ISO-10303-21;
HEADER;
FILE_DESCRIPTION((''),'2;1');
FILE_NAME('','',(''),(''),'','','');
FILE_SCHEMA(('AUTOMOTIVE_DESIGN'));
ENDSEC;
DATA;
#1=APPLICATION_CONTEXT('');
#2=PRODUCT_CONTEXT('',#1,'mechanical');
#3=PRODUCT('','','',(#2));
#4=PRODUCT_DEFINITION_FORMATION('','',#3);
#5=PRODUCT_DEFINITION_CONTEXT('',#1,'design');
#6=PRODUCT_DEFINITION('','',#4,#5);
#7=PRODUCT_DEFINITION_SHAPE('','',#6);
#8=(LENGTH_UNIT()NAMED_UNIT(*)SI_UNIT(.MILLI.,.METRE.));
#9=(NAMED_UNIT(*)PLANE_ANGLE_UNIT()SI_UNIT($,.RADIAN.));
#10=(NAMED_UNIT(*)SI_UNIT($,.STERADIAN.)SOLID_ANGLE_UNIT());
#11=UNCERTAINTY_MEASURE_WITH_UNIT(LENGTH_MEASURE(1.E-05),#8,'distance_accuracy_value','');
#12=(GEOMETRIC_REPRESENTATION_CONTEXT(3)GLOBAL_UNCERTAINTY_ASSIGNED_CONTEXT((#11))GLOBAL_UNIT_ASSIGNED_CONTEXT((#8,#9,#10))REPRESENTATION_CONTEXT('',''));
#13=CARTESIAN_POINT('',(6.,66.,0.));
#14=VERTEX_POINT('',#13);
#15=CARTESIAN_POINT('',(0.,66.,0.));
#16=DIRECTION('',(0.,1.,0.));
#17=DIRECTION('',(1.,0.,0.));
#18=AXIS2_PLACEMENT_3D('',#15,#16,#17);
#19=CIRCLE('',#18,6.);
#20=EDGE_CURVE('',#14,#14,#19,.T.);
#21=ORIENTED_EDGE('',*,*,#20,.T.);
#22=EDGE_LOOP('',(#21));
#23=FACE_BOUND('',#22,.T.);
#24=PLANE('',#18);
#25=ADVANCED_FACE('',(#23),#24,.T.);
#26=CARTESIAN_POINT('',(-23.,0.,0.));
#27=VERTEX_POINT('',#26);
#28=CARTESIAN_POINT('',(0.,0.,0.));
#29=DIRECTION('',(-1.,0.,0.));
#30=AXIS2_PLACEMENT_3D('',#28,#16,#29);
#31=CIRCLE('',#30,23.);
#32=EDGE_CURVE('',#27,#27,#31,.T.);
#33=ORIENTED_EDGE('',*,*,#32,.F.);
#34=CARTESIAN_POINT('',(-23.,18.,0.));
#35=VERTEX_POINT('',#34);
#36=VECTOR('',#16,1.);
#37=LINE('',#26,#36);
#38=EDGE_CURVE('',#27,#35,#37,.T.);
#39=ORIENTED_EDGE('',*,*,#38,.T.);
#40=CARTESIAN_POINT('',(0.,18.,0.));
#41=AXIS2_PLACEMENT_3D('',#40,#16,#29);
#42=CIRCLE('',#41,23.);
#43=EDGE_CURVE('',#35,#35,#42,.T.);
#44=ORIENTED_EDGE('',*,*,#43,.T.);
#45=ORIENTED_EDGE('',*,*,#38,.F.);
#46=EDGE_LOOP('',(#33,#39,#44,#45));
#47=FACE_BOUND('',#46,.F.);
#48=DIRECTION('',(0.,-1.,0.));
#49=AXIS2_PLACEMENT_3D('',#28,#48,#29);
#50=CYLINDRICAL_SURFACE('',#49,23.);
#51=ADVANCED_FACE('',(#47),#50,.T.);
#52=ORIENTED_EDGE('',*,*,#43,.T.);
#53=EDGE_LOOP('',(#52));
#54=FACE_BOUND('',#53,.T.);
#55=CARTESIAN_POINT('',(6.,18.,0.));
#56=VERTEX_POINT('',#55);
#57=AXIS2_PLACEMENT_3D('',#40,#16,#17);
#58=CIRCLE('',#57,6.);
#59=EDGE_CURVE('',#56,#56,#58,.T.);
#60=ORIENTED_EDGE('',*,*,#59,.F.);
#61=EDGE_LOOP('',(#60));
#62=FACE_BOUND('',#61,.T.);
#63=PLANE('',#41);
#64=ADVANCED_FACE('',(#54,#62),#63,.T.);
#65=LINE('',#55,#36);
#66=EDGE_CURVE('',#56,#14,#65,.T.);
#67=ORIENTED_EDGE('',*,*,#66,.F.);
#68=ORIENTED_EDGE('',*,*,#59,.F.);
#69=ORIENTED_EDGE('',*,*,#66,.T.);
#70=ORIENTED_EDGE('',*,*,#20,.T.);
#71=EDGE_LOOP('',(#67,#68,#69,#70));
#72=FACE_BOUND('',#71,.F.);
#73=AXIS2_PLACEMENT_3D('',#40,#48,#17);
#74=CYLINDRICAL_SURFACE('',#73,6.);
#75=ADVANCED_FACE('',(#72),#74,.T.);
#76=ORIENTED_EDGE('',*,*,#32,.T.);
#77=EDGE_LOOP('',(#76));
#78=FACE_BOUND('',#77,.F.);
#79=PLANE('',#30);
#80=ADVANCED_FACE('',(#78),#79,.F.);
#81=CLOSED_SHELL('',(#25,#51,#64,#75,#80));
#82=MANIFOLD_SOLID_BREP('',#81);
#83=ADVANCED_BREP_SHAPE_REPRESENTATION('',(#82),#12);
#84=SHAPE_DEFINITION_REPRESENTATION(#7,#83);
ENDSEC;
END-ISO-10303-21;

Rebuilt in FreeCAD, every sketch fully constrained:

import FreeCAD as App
import Part
import Sketcher
from FreeCAD import Vector
Q = App.Units.Quantity

doc = App.newDocument("Part")
body = doc.addObject("PartDesign::Body", "Body")

sketch1 = body.newObject("Sketcher::SketchObject", "Sketch")
sketch1.AttachmentSupport = (doc.getObject("XZ_Plane"), [""])
sketch1.MapMode = "FlatFace"
sketch1.addGeometry(Part.Circle(Vector(0, 0, 0), Vector(0, 0, 1), 23), False)
sketch1.addConstraint([
    Sketcher.Constraint("Coincident", 0, 3, -1, 1),
    Sketcher.Constraint("Diameter", 0, Q("46 mm")),
])
pad1 = body.newObject("PartDesign::Pad", "Pad")
pad1.Profile = sketch1
pad1.Length = 18
pad1.Reversed = True

sketch2 = body.newObject("Sketcher::SketchObject", "Sketch001")
sketch2.AttachmentSupport = (doc.getObject("XZ_Plane"), [""])
sketch2.MapMode = "FlatFace"
sketch2.AttachmentOffset = App.Placement(Vector(0, 0, -18), App.Rotation())
sketch2.addGeometry(Part.Circle(Vector(0, 0, 0), Vector(0, 0, 1), 6), False)
sketch2.addConstraint([
    Sketcher.Constraint("Coincident", 0, 3, -1, 1),
    Sketcher.Constraint("Diameter", 0, Q("12 mm")),
])
pad2 = body.newObject("PartDesign::Pad", "Pad001")
pad2.Profile = sketch2
pad2.Length = 48
pad2.Reversed = True

doc.recompute()
